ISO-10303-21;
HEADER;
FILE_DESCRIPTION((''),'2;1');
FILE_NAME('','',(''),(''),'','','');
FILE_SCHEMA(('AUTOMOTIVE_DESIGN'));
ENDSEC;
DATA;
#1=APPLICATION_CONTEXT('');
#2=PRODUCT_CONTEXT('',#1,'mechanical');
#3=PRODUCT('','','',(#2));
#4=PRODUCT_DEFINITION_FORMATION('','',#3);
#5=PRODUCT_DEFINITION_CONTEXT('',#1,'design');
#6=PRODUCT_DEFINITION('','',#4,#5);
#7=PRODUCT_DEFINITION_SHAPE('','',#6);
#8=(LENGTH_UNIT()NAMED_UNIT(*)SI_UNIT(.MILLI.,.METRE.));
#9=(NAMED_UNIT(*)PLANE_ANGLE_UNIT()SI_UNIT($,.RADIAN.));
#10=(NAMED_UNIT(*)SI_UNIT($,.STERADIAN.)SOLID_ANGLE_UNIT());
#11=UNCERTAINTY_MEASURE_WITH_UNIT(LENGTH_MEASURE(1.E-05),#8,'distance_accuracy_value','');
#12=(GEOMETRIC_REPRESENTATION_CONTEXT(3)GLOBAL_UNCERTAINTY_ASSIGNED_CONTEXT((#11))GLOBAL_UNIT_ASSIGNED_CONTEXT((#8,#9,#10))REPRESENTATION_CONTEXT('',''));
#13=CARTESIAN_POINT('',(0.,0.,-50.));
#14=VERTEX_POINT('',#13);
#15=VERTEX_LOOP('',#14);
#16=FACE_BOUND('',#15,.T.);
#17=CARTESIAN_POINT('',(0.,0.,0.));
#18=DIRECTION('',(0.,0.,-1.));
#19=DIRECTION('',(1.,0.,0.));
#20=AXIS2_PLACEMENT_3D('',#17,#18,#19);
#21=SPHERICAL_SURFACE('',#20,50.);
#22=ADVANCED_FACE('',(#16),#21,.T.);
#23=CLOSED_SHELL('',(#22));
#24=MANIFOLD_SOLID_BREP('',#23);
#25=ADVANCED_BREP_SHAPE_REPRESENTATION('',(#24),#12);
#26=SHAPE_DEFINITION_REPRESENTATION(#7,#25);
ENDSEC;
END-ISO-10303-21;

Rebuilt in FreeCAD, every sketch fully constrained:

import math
import FreeCAD as App
import Part
import Sketcher
from FreeCAD import Vector
Q = App.Units.Quantity

doc = App.newDocument("Part")
params = doc.addObject("Spreadsheet::Sheet", "Params")
for row, (alias, value) in enumerate([
    ("revolution_angle", "360 deg"),
], start=1):
    params.set(f"A{row}", alias)
    params.set(f"B{row}", "=" + value)
    params.setAlias(f"B{row}", alias)

body = doc.addObject("PartDesign::Body", "Body")

# Sketch on XZ plane
sketch1 = doc.addObject("Sketcher::SketchObject", "Sketch")
body.addObject(sketch1)
sketch1.AttachmentSupport = (doc.XZ_Plane, [""])
sketch1.MapMode = "FlatFace"
sketch1.addGeometry(Part.LineSegment(Vector(0, -50, 0), Vector(0, 50, 0)), False)
sketch1.addGeometry(Part.ArcOfCircle(Part.Circle(Vector(0, 0, 0), Vector(0, 0, 1), 50), math.radians(-90), math.radians(90)), False)
sketch1.addConstraint(Sketcher.Constraint("Coincident", 0, 1, 1, 1))
sketch1.addConstraint(Sketcher.Constraint("Coincident", 1, 2, 0, 2))
sketch1.addConstraint(Sketcher.Constraint("Vertical", 0))
sketch1.addConstraint(Sketcher.Constraint("Coincident", 1, 3, -1, 1))
sketch1.addConstraint(Sketcher.Constraint("PointOnObject", 0, 1, -2))
sketch1.addConstraint(Sketcher.Constraint("Radius", 1, Q("1.9685 in")))
revolution = doc.addObject("PartDesign::Revolution", "Revolution")
body.addObject(revolution)
revolution.Profile = sketch1
revolution.ReferenceAxis = (sketch1, ["V_Axis"])
revolution.setExpression("Angle", "Params.revolution_angle")

doc.recompute()
